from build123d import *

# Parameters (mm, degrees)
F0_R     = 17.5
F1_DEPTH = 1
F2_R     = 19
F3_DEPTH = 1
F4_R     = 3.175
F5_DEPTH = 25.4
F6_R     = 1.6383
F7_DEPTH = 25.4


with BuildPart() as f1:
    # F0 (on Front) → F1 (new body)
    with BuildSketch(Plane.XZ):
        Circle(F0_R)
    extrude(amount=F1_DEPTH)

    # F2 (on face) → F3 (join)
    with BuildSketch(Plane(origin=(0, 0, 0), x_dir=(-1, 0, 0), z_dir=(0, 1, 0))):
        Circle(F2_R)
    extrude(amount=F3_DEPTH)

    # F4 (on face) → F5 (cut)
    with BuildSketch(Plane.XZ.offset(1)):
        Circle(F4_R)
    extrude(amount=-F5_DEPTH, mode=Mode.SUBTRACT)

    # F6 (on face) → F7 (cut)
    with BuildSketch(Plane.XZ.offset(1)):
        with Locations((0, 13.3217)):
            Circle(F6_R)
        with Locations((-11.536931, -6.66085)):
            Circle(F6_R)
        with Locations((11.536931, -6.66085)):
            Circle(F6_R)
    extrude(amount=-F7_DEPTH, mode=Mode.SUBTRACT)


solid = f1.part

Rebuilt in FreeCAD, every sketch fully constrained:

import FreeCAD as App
import Part
import Sketcher
from FreeCAD import Vector

doc = App.newDocument("Part")
params = doc.addObject("Spreadsheet::Sheet", "Params")
for row, (alias, value) in enumerate([
    ("sketch1_diameter", "35 mm"),
    ("pad1_length", "1 mm"),
    ("sketch2_diameter", "38 mm"),
    ("pad2_length", "1 mm"),
    ("sketch3_diameter", "6.35 mm"),
    ("pocket1_length", "25.4 mm"),
    ("pocket2_length", "25.4 mm"),
], start=1):
    params.set(f"A{row}", alias)
    params.set(f"B{row}", "=" + value)
    params.setAlias(f"B{row}", alias)

body = doc.addObject("PartDesign::Body", "Body")

# Sketch on XZ plane
sketch1 = body.newObject("Sketcher::SketchObject", "Sketch")
sketch1.AttachmentSupport = (doc.getObject("XZ_Plane"), [""])
sketch1.MapMode = "FlatFace"
sketch1.addGeometry(Part.Circle(Vector(0, 0, 0), Vector(0, 0, 1), 18), False)
sketch1.addConstraint(Sketcher.Constraint("Coincident", 0, 3, -1, 1))
sketch1.addConstraint(Sketcher.Constraint("Diameter", 0, 35.0))
sketch1.setExpression("Constraints[1]", "Params.sketch1_diameter")
pad1 = body.newObject("PartDesign::Pad", "Pad")
pad1.Profile = sketch1
pad1.setExpression("Length", "Params.pad1_length")

# Sketch on XZ plane
sketch2 = body.newObject("Sketcher::SketchObject", "Sketch001")
sketch2.AttachmentSupport = (doc.getObject("XZ_Plane"), [""])
sketch2.MapMode = "FlatFace"
sketch2.addGeometry(Part.Circle(Vector(0, 0, 0), Vector(0, 0, 1), 19), False)
sketch2.addConstraint(Sketcher.Constraint("Coincident", 0, 3, -1, 1))
sketch2.addConstraint(Sketcher.Constraint("Diameter", 0, 38.0))
sketch2.setExpression("Constraints[1]", "Params.sketch2_diameter")
pad2 = body.newObject("PartDesign::Pad", "Pad001")
pad2.Profile = sketch2
pad2.setExpression("Length", "Params.pad2_length")
pad2.Reversed = True

# Sketch on XZ plane
sketch3 = body.newObject("Sketcher::SketchObject", "Sketch002")
sketch3.AttachmentSupport = (doc.getObject("XZ_Plane"), [""])
sketch3.MapMode = "FlatFace"
sketch3.AttachmentOffset = App.Placement(Vector(0, 0, 1), App.Rotation())
sketch3.addGeometry(Part.Circle(Vector(0, 0, 0), Vector(0, 0, 1), 3.2), False)
sketch3.addConstraint(Sketcher.Constraint("Coincident", 0, 3, -1, 1))
sketch3.addConstraint(Sketcher.Constraint("Diameter", 0, 6.35))
sketch3.setExpression("Constraints[1]", "Params.sketch3_diameter")
pocket1 = body.newObject("PartDesign::Pocket", "Pocket")
pocket1.Profile = sketch3
pocket1.setExpression("Length", "Params.pocket1_length")

# Sketch on XZ plane
sketch4 = body.newObject("Sketcher::SketchObject", "Sketch003")
sketch4.AttachmentSupport = (doc.getObject("XZ_Plane"), [""])
sketch4.MapMode = "FlatFace"
sketch4.AttachmentOffset = App.Placement(Vector(0, 0, 1), App.Rotation())
sketch4.addGeometry(Part.Circle(Vector(0, 13.3, 0), Vector(0, 0, 1), 1.6), False)
sketch4.addGeometry(Part.Circle(Vector(-11.5, -6.7, 0), Vector(0, 0, 1), 1.6), False)
sketch4.addGeometry(Part.Circle(Vector(11.5, -6.7, 0), Vector(0, 0, 1), 1.6), False)
sketch4.addConstraint(Sketcher.Constraint("Equal", 0, 1))
sketch4.addConstraint(Sketcher.Constraint("Equal", 1, 2))
sketch4.addConstraint(Sketcher.Constraint("Symmetric", 1, 3, 2, 3, -2))
sketch4.addConstraint(Sketcher.Constraint("PointOnObject", 0, 3, -2))
sketch4.addConstraint(Sketcher.Constraint("Diameter", 0, 3.2766))
sketch4.addConstraint(Sketcher.Constraint("DistanceY", -1, 1, 0, 3, 13.3217))
sketch4.addConstraint(Sketcher.Constraint("DistanceX", 1, 3, -1, 1, 11.536931))
sketch4.addConstraint(Sketcher.Constraint("DistanceY", 1, 3, -1, 1, 6.66085))
pocket2 = body.newObject("PartDesign::Pocket", "Pocket001")
pocket2.Profile = sketch4
pocket2.setExpression("Length", "Params.pocket2_length")

doc.recompute()
